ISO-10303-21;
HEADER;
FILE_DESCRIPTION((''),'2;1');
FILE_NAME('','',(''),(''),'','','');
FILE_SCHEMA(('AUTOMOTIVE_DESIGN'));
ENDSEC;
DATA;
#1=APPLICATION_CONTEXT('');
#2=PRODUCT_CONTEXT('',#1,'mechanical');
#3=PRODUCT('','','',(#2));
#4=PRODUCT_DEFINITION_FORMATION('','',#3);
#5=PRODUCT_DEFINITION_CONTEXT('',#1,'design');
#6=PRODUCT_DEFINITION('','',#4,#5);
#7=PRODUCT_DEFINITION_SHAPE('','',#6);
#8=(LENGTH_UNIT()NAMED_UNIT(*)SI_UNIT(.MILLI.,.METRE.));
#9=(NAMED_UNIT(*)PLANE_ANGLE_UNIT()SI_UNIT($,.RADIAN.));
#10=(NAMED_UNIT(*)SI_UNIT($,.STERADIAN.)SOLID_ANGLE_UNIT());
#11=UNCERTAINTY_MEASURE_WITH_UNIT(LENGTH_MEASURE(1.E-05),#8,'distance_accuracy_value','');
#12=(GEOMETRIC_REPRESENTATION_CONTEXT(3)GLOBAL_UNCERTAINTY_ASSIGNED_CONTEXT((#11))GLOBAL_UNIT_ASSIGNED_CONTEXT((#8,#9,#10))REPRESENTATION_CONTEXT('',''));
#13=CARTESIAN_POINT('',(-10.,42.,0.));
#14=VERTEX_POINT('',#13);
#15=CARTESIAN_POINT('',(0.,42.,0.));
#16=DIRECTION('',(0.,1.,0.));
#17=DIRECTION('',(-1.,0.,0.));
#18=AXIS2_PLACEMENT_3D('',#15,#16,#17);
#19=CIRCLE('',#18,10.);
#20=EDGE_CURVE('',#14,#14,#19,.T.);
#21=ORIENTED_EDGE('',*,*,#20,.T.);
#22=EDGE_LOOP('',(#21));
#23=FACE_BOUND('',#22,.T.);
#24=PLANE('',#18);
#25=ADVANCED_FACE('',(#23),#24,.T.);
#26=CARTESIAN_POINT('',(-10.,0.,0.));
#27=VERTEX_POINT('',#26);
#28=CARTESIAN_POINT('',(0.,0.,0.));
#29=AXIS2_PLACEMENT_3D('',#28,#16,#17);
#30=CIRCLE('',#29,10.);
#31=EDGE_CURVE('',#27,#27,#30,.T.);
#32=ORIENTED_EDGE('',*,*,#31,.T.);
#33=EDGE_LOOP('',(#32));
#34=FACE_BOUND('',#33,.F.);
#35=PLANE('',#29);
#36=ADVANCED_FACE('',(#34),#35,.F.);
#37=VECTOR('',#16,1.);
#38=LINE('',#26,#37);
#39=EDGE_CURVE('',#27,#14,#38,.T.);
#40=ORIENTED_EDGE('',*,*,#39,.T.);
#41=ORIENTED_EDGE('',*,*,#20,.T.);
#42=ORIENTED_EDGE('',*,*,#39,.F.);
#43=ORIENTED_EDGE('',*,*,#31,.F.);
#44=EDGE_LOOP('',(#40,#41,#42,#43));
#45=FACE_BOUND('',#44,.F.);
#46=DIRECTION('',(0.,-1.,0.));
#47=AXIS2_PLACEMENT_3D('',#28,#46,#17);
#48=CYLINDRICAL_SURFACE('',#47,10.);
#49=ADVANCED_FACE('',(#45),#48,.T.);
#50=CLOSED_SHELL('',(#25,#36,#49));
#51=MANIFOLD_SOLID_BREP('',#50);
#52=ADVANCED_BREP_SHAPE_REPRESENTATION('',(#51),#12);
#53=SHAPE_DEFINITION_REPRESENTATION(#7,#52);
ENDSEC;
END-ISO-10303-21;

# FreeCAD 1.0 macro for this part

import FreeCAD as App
import Part
import Sketcher

doc = App.newDocument("Part")
body = doc.addObject("PartDesign::Body", "Body")

sketch1 = body.newObject("Sketcher::SketchObject", "Sketch")
sketch1.AttachmentSupport = (doc.getObject("XZ_Plane"), [""])
sketch1.MapMode = "FlatFace"
sketch1.addGeometry(Part.Circle(App.Vector(0, 0, 0), App.Vector(0, 0, 1), 10), False)
sketch1.addConstraint(Sketcher.Constraint("Coincident", 0, 3, -1, 1))
sketch1.addConstraint(Sketcher.Constraint("Diameter", 0, 20.0))
pad1 = body.newObject("PartDesign::Pad", "Pad")
pad1.Profile = sketch1
pad1.Length = 42
pad1.Reversed = True

doc.recompute()
